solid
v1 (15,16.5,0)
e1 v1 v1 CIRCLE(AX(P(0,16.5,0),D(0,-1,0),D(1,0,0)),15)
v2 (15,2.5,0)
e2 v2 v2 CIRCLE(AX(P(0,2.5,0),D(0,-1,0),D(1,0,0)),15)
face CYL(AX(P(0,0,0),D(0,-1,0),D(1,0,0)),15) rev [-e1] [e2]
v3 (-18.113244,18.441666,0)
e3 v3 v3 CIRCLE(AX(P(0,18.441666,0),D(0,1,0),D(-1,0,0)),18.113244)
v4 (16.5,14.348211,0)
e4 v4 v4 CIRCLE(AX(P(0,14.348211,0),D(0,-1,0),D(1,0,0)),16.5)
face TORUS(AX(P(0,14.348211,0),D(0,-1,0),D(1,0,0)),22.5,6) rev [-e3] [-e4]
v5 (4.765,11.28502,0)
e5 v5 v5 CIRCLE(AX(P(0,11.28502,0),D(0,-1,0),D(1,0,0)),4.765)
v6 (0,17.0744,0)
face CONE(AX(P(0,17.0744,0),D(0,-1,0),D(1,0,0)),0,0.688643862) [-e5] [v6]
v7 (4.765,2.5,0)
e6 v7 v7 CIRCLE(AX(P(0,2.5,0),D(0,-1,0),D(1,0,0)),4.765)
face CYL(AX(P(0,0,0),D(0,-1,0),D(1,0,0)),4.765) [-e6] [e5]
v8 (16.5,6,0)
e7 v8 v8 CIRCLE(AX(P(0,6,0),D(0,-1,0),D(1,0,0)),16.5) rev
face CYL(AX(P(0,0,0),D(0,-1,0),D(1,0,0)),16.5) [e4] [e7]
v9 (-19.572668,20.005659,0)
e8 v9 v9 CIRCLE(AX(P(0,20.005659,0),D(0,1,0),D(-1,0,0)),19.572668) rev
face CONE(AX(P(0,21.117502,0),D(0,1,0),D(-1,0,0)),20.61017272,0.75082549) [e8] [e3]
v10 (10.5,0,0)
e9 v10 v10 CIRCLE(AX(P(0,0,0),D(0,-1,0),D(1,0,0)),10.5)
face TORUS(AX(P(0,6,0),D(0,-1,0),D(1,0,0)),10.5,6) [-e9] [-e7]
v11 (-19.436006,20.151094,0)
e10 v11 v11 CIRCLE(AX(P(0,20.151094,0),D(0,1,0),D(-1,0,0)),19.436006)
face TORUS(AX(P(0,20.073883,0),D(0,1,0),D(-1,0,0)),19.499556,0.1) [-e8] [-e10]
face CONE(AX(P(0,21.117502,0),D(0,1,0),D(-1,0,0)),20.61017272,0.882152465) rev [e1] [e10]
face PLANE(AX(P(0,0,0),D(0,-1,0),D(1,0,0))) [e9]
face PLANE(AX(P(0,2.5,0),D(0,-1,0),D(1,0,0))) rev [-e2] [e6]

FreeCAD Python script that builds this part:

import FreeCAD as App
import Part
import Sketcher

V = App.Vector


def edges_at(feature, points):
    """Names of the edges that pass closest to the given points."""
    edges = feature.Shape.Edges
    near = lambda p: min(range(len(edges)), key=lambda i: edges[i].distToShape(Part.Vertex(*p))[0])
    return sorted({f"Edge{near(p) + 1}" for p in points})

doc = App.newDocument("Part")
body = doc.addObject("PartDesign::Body", "Body")

# Sketch on XY plane
sketch1 = body.newObject("Sketcher::SketchObject", "Sketch")
sketch1.AttachmentSupport = (doc.getObject("XY_Plane"), [""])
sketch1.MapMode = "FlatFace"
sketch1.addGeometry(Part.LineSegment(V(0, 17.0744, 0), V(0, 0, 0)), False)
sketch1.addGeometry(Part.LineSegment(V(0, 0, 0), V(16.5, 0, 0)), False)
sketch1.addGeometry(Part.LineSegment(V(16.5, 0, 0), V(16.5, 16.712831, 0)), False)
sketch1.addGeometry(Part.LineSegment(V(16.5, 16.712831, 0), V(20.610173, 21.117502, 0)), False)
sketch1.addGeometry(Part.LineSegment(V(20.610173, 21.117502, 0), V(15, 16.5, 0)), False)
sketch1.addGeometry(Part.LineSegment(V(15, 16.5, 0), V(15, 2.5, 0)), False)
sketch1.addGeometry(Part.LineSegment(V(15, 2.5, 0), V(4.765, 2.5, 0)), False)
sketch1.addGeometry(Part.LineSegment(V(4.765, 2.5, 0), V(4.765, 11.28502, 0)), False)
sketch1.addGeometry(Part.LineSegment(V(4.765, 11.28502, 0), V(0, 17.0744, 0)), False)
sketch1.addConstraint(Sketcher.Constraint("Coincident", 0, 2, 1, 1))
sketch1.addConstraint(Sketcher.Constraint("Coincident", 1, 2, 2, 1))
sketch1.addConstraint(Sketcher.Constraint("Coincident", 2, 2, 3, 1))
sketch1.addConstraint(Sketcher.Constraint("Coincident", 3, 2, 4, 1))
sketch1.addConstraint(Sketcher.Constraint("Coincident", 4, 2, 5, 1))
sketch1.addConstraint(Sketcher.Constraint("Coincident", 5, 2, 6, 1))
sketch1.addConstraint(Sketcher.Constraint("Coincident", 6, 2, 7, 1))
sketch1.addConstraint(Sketcher.Constraint("Coincident", 7, 2, 8, 1))
sketch1.addConstraint(Sketcher.Constraint("Coincident", 8, 2, 0, 1))
sketch1.addConstraint(Sketcher.Constraint("Vertical", 0))
sketch1.addConstraint(Sketcher.Constraint("Horizontal", 1))
sketch1.addConstraint(Sketcher.Constraint("Vertical", 2))
sketch1.addConstraint(Sketcher.Constraint("Vertical", 5))
sketch1.addConstraint(Sketcher.Constraint("Horizontal", 6))
sketch1.addConstraint(Sketcher.Constraint("Vertical", 7))
sketch1.addConstraint(Sketcher.Constraint("Coincident", 0, 2, -1, 1))
sketch1.addConstraint(Sketcher.Constraint("Perpendicular", 4, 8))
sketch1.addConstraint(Sketcher.Constraint("DistanceY", 5, 2, 5, 1, 14.0))
sketch1.addConstraint(Sketcher.Constraint("DistanceX", 1, 1, 1, 2, 16.5))
sketch1.addConstraint(Sketcher.Constraint("DistanceX", -1, 1, 4, 2, 15.0))
sketch1.addConstraint(Sketcher.Constraint("DistanceY", -1, 1, 4, 2, 16.5))
sketch1.addConstraint(Sketcher.Constraint("DistanceX", 6, 2, 6, 1, 10.235))
sketch1.addConstraint(Sketcher.Constraint("DistanceY", 0, 2, 0, 1, 17.0744))
sketch1.addConstraint(Sketcher.Constraint("DistanceY", 2, 1, 2, 2, 16.712831))
sketch1.addConstraint(Sketcher.Constraint("DistanceY", 7, 1, 7, 2, 8.78502))
sketch1.addConstraint(Sketcher.Constraint("DistanceY", -1, 1, 3, 2, 21.117502))
revolution = body.newObject("PartDesign::Revolution", "Revolution")
revolution.Profile = sketch1
revolution.ReferenceAxis = (sketch1, ["V_Axis"])
revolution.Angle = 360
doc.recompute()

fillet = body.newObject("PartDesign::Fillet", "Fillet")
fillet.Base = (revolution, edges_at(revolution, [(-16.5, 16.713, 0), (-16.5, 0, 0)]))
fillet.Radius = 6
doc.recompute()

fillet2 = body.newObject("PartDesign::Fillet", "Fillet001")
fillet2.Base = (fillet, edges_at(fillet, [(-20.61, 21.118, 0)]))
fillet2.Radius = 0.1

doc.recompute()
